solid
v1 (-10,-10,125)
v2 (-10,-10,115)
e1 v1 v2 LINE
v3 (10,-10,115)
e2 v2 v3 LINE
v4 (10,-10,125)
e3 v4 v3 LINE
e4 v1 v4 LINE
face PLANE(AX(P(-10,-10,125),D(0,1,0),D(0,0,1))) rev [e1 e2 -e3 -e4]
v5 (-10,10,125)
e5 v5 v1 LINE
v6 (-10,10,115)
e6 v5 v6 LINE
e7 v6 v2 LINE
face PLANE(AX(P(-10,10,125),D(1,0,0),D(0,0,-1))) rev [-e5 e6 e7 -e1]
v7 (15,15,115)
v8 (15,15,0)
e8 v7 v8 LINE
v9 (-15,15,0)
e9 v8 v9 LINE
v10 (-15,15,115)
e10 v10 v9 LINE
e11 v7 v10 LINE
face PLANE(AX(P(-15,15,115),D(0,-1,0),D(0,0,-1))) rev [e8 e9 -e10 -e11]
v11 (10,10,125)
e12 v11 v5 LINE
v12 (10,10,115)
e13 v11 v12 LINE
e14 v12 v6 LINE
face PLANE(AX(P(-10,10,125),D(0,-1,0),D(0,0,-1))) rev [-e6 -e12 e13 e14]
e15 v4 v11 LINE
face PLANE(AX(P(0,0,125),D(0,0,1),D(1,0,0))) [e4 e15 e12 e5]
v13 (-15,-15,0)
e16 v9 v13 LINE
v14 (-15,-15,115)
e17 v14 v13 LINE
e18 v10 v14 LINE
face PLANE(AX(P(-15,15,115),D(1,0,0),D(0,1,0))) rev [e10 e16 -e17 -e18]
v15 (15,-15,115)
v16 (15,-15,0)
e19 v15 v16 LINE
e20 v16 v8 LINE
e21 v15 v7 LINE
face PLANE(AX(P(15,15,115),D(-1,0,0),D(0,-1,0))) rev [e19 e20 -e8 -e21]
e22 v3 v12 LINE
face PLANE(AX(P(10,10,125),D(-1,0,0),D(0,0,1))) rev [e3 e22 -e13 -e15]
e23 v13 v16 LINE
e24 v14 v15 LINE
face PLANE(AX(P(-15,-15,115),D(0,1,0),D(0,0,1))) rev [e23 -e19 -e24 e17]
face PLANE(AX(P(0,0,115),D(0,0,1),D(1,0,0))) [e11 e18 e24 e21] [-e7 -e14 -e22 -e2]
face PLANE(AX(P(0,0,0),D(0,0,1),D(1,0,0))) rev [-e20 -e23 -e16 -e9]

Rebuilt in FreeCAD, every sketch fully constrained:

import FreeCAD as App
import Part
import Sketcher

V = App.Vector
Q = App.Units.Quantity


def add_polygon(sketch, points):
    """Adds a closed chain of lines whose ends are joined by coincident constraints."""
    first, n = sketch.GeometryCount, len(points)
    for a, b in zip(points, points[1:] + points[:1]):
        sketch.addGeometry(Part.LineSegment(App.Vector(*a, 0), App.Vector(*b, 0)), False)
    for i in range(n):
        sketch.addConstraint(Sketcher.Constraint("Coincident", first + i, 2, first + (i + 1) % n, 1))

doc = App.newDocument("Part")
params = doc.addObject("Spreadsheet::Sheet", "Params")
for row, (alias, value) in enumerate([
    ("sketch1_width", "30 mm"),
    ("pad1_length", "115 mm"),
    ("sketch2_width", "20 mm"),
    ("pad2_length", "10 mm"),
], start=1):
    params.set(f"A{row}", alias)
    params.set(f"B{row}", "=" + value)
    params.setAlias(f"B{row}", alias)

body = doc.addObject("PartDesign::Body", "Body")

# Sketch on XY plane
sketch1 = doc.addObject("Sketcher::SketchObject", "Sketch")
body.addObject(sketch1)
sketch1.AttachmentSupport = (doc.XY_Plane, [""])
sketch1.MapMode = "FlatFace"
add_polygon(sketch1, [(-15, 15), (-15, -15), (15, -15), (15, 15)])  # lines 0-3
sketch1.addConstraint([
    Sketcher.Constraint("Vertical", 0),
    Sketcher.Constraint("Horizontal", 1),
    Sketcher.Constraint("Vertical", 2),
    Sketcher.Constraint("Horizontal", 3),
    Sketcher.Constraint("Symmetric", 0, 2, 2, 2, -1, 1),
    Sketcher.Constraint("Equal", 3, 0),
    Sketcher.Constraint("DistanceX", 1, 1, 1, 2, Q("30 mm")),
])
sketch1.setExpression("Constraints[10]", "Params.sketch1_width")
pad1 = doc.addObject("PartDesign::Pad", "Pad")
body.addObject(pad1)
pad1.Profile = sketch1
pad1.setExpression("Length", "Params.pad1_length")

# Sketch on XY plane
sketch2 = doc.addObject("Sketcher::SketchObject", "Sketch001")
body.addObject(sketch2)
sketch2.AttachmentSupport = (doc.XY_Plane, [""])
sketch2.MapMode = "FlatFace"
sketch2.AttachmentOffset = App.Placement(V(0, 0, 115), App.Rotation())
add_polygon(sketch2, [(-10, 10), (-10, -10), (10, -10), (10, 10)])  # lines 0-3
sketch2.addConstraint([
    Sketcher.Constraint("Vertical", 0),
    Sketcher.Constraint("Horizontal", 1),
    Sketcher.Constraint("Vertical", 2),
    Sketcher.Constraint("Horizontal", 3),
    Sketcher.Constraint("Symmetric", 0, 2, 2, 2, -1, 1),
    Sketcher.Constraint("Equal", 3, 0),
    Sketcher.Constraint("DistanceX", 1, 1, 1, 2, Q("20 mm")),
])
sketch2.setExpression("Constraints[10]", "Params.sketch2_width")
pad2 = doc.addObject("PartDesign::Pad", "Pad001")
body.addObject(pad2)
pad2.Profile = sketch2
pad2.setExpression("Length", "Params.pad2_length")

doc.recompute()
